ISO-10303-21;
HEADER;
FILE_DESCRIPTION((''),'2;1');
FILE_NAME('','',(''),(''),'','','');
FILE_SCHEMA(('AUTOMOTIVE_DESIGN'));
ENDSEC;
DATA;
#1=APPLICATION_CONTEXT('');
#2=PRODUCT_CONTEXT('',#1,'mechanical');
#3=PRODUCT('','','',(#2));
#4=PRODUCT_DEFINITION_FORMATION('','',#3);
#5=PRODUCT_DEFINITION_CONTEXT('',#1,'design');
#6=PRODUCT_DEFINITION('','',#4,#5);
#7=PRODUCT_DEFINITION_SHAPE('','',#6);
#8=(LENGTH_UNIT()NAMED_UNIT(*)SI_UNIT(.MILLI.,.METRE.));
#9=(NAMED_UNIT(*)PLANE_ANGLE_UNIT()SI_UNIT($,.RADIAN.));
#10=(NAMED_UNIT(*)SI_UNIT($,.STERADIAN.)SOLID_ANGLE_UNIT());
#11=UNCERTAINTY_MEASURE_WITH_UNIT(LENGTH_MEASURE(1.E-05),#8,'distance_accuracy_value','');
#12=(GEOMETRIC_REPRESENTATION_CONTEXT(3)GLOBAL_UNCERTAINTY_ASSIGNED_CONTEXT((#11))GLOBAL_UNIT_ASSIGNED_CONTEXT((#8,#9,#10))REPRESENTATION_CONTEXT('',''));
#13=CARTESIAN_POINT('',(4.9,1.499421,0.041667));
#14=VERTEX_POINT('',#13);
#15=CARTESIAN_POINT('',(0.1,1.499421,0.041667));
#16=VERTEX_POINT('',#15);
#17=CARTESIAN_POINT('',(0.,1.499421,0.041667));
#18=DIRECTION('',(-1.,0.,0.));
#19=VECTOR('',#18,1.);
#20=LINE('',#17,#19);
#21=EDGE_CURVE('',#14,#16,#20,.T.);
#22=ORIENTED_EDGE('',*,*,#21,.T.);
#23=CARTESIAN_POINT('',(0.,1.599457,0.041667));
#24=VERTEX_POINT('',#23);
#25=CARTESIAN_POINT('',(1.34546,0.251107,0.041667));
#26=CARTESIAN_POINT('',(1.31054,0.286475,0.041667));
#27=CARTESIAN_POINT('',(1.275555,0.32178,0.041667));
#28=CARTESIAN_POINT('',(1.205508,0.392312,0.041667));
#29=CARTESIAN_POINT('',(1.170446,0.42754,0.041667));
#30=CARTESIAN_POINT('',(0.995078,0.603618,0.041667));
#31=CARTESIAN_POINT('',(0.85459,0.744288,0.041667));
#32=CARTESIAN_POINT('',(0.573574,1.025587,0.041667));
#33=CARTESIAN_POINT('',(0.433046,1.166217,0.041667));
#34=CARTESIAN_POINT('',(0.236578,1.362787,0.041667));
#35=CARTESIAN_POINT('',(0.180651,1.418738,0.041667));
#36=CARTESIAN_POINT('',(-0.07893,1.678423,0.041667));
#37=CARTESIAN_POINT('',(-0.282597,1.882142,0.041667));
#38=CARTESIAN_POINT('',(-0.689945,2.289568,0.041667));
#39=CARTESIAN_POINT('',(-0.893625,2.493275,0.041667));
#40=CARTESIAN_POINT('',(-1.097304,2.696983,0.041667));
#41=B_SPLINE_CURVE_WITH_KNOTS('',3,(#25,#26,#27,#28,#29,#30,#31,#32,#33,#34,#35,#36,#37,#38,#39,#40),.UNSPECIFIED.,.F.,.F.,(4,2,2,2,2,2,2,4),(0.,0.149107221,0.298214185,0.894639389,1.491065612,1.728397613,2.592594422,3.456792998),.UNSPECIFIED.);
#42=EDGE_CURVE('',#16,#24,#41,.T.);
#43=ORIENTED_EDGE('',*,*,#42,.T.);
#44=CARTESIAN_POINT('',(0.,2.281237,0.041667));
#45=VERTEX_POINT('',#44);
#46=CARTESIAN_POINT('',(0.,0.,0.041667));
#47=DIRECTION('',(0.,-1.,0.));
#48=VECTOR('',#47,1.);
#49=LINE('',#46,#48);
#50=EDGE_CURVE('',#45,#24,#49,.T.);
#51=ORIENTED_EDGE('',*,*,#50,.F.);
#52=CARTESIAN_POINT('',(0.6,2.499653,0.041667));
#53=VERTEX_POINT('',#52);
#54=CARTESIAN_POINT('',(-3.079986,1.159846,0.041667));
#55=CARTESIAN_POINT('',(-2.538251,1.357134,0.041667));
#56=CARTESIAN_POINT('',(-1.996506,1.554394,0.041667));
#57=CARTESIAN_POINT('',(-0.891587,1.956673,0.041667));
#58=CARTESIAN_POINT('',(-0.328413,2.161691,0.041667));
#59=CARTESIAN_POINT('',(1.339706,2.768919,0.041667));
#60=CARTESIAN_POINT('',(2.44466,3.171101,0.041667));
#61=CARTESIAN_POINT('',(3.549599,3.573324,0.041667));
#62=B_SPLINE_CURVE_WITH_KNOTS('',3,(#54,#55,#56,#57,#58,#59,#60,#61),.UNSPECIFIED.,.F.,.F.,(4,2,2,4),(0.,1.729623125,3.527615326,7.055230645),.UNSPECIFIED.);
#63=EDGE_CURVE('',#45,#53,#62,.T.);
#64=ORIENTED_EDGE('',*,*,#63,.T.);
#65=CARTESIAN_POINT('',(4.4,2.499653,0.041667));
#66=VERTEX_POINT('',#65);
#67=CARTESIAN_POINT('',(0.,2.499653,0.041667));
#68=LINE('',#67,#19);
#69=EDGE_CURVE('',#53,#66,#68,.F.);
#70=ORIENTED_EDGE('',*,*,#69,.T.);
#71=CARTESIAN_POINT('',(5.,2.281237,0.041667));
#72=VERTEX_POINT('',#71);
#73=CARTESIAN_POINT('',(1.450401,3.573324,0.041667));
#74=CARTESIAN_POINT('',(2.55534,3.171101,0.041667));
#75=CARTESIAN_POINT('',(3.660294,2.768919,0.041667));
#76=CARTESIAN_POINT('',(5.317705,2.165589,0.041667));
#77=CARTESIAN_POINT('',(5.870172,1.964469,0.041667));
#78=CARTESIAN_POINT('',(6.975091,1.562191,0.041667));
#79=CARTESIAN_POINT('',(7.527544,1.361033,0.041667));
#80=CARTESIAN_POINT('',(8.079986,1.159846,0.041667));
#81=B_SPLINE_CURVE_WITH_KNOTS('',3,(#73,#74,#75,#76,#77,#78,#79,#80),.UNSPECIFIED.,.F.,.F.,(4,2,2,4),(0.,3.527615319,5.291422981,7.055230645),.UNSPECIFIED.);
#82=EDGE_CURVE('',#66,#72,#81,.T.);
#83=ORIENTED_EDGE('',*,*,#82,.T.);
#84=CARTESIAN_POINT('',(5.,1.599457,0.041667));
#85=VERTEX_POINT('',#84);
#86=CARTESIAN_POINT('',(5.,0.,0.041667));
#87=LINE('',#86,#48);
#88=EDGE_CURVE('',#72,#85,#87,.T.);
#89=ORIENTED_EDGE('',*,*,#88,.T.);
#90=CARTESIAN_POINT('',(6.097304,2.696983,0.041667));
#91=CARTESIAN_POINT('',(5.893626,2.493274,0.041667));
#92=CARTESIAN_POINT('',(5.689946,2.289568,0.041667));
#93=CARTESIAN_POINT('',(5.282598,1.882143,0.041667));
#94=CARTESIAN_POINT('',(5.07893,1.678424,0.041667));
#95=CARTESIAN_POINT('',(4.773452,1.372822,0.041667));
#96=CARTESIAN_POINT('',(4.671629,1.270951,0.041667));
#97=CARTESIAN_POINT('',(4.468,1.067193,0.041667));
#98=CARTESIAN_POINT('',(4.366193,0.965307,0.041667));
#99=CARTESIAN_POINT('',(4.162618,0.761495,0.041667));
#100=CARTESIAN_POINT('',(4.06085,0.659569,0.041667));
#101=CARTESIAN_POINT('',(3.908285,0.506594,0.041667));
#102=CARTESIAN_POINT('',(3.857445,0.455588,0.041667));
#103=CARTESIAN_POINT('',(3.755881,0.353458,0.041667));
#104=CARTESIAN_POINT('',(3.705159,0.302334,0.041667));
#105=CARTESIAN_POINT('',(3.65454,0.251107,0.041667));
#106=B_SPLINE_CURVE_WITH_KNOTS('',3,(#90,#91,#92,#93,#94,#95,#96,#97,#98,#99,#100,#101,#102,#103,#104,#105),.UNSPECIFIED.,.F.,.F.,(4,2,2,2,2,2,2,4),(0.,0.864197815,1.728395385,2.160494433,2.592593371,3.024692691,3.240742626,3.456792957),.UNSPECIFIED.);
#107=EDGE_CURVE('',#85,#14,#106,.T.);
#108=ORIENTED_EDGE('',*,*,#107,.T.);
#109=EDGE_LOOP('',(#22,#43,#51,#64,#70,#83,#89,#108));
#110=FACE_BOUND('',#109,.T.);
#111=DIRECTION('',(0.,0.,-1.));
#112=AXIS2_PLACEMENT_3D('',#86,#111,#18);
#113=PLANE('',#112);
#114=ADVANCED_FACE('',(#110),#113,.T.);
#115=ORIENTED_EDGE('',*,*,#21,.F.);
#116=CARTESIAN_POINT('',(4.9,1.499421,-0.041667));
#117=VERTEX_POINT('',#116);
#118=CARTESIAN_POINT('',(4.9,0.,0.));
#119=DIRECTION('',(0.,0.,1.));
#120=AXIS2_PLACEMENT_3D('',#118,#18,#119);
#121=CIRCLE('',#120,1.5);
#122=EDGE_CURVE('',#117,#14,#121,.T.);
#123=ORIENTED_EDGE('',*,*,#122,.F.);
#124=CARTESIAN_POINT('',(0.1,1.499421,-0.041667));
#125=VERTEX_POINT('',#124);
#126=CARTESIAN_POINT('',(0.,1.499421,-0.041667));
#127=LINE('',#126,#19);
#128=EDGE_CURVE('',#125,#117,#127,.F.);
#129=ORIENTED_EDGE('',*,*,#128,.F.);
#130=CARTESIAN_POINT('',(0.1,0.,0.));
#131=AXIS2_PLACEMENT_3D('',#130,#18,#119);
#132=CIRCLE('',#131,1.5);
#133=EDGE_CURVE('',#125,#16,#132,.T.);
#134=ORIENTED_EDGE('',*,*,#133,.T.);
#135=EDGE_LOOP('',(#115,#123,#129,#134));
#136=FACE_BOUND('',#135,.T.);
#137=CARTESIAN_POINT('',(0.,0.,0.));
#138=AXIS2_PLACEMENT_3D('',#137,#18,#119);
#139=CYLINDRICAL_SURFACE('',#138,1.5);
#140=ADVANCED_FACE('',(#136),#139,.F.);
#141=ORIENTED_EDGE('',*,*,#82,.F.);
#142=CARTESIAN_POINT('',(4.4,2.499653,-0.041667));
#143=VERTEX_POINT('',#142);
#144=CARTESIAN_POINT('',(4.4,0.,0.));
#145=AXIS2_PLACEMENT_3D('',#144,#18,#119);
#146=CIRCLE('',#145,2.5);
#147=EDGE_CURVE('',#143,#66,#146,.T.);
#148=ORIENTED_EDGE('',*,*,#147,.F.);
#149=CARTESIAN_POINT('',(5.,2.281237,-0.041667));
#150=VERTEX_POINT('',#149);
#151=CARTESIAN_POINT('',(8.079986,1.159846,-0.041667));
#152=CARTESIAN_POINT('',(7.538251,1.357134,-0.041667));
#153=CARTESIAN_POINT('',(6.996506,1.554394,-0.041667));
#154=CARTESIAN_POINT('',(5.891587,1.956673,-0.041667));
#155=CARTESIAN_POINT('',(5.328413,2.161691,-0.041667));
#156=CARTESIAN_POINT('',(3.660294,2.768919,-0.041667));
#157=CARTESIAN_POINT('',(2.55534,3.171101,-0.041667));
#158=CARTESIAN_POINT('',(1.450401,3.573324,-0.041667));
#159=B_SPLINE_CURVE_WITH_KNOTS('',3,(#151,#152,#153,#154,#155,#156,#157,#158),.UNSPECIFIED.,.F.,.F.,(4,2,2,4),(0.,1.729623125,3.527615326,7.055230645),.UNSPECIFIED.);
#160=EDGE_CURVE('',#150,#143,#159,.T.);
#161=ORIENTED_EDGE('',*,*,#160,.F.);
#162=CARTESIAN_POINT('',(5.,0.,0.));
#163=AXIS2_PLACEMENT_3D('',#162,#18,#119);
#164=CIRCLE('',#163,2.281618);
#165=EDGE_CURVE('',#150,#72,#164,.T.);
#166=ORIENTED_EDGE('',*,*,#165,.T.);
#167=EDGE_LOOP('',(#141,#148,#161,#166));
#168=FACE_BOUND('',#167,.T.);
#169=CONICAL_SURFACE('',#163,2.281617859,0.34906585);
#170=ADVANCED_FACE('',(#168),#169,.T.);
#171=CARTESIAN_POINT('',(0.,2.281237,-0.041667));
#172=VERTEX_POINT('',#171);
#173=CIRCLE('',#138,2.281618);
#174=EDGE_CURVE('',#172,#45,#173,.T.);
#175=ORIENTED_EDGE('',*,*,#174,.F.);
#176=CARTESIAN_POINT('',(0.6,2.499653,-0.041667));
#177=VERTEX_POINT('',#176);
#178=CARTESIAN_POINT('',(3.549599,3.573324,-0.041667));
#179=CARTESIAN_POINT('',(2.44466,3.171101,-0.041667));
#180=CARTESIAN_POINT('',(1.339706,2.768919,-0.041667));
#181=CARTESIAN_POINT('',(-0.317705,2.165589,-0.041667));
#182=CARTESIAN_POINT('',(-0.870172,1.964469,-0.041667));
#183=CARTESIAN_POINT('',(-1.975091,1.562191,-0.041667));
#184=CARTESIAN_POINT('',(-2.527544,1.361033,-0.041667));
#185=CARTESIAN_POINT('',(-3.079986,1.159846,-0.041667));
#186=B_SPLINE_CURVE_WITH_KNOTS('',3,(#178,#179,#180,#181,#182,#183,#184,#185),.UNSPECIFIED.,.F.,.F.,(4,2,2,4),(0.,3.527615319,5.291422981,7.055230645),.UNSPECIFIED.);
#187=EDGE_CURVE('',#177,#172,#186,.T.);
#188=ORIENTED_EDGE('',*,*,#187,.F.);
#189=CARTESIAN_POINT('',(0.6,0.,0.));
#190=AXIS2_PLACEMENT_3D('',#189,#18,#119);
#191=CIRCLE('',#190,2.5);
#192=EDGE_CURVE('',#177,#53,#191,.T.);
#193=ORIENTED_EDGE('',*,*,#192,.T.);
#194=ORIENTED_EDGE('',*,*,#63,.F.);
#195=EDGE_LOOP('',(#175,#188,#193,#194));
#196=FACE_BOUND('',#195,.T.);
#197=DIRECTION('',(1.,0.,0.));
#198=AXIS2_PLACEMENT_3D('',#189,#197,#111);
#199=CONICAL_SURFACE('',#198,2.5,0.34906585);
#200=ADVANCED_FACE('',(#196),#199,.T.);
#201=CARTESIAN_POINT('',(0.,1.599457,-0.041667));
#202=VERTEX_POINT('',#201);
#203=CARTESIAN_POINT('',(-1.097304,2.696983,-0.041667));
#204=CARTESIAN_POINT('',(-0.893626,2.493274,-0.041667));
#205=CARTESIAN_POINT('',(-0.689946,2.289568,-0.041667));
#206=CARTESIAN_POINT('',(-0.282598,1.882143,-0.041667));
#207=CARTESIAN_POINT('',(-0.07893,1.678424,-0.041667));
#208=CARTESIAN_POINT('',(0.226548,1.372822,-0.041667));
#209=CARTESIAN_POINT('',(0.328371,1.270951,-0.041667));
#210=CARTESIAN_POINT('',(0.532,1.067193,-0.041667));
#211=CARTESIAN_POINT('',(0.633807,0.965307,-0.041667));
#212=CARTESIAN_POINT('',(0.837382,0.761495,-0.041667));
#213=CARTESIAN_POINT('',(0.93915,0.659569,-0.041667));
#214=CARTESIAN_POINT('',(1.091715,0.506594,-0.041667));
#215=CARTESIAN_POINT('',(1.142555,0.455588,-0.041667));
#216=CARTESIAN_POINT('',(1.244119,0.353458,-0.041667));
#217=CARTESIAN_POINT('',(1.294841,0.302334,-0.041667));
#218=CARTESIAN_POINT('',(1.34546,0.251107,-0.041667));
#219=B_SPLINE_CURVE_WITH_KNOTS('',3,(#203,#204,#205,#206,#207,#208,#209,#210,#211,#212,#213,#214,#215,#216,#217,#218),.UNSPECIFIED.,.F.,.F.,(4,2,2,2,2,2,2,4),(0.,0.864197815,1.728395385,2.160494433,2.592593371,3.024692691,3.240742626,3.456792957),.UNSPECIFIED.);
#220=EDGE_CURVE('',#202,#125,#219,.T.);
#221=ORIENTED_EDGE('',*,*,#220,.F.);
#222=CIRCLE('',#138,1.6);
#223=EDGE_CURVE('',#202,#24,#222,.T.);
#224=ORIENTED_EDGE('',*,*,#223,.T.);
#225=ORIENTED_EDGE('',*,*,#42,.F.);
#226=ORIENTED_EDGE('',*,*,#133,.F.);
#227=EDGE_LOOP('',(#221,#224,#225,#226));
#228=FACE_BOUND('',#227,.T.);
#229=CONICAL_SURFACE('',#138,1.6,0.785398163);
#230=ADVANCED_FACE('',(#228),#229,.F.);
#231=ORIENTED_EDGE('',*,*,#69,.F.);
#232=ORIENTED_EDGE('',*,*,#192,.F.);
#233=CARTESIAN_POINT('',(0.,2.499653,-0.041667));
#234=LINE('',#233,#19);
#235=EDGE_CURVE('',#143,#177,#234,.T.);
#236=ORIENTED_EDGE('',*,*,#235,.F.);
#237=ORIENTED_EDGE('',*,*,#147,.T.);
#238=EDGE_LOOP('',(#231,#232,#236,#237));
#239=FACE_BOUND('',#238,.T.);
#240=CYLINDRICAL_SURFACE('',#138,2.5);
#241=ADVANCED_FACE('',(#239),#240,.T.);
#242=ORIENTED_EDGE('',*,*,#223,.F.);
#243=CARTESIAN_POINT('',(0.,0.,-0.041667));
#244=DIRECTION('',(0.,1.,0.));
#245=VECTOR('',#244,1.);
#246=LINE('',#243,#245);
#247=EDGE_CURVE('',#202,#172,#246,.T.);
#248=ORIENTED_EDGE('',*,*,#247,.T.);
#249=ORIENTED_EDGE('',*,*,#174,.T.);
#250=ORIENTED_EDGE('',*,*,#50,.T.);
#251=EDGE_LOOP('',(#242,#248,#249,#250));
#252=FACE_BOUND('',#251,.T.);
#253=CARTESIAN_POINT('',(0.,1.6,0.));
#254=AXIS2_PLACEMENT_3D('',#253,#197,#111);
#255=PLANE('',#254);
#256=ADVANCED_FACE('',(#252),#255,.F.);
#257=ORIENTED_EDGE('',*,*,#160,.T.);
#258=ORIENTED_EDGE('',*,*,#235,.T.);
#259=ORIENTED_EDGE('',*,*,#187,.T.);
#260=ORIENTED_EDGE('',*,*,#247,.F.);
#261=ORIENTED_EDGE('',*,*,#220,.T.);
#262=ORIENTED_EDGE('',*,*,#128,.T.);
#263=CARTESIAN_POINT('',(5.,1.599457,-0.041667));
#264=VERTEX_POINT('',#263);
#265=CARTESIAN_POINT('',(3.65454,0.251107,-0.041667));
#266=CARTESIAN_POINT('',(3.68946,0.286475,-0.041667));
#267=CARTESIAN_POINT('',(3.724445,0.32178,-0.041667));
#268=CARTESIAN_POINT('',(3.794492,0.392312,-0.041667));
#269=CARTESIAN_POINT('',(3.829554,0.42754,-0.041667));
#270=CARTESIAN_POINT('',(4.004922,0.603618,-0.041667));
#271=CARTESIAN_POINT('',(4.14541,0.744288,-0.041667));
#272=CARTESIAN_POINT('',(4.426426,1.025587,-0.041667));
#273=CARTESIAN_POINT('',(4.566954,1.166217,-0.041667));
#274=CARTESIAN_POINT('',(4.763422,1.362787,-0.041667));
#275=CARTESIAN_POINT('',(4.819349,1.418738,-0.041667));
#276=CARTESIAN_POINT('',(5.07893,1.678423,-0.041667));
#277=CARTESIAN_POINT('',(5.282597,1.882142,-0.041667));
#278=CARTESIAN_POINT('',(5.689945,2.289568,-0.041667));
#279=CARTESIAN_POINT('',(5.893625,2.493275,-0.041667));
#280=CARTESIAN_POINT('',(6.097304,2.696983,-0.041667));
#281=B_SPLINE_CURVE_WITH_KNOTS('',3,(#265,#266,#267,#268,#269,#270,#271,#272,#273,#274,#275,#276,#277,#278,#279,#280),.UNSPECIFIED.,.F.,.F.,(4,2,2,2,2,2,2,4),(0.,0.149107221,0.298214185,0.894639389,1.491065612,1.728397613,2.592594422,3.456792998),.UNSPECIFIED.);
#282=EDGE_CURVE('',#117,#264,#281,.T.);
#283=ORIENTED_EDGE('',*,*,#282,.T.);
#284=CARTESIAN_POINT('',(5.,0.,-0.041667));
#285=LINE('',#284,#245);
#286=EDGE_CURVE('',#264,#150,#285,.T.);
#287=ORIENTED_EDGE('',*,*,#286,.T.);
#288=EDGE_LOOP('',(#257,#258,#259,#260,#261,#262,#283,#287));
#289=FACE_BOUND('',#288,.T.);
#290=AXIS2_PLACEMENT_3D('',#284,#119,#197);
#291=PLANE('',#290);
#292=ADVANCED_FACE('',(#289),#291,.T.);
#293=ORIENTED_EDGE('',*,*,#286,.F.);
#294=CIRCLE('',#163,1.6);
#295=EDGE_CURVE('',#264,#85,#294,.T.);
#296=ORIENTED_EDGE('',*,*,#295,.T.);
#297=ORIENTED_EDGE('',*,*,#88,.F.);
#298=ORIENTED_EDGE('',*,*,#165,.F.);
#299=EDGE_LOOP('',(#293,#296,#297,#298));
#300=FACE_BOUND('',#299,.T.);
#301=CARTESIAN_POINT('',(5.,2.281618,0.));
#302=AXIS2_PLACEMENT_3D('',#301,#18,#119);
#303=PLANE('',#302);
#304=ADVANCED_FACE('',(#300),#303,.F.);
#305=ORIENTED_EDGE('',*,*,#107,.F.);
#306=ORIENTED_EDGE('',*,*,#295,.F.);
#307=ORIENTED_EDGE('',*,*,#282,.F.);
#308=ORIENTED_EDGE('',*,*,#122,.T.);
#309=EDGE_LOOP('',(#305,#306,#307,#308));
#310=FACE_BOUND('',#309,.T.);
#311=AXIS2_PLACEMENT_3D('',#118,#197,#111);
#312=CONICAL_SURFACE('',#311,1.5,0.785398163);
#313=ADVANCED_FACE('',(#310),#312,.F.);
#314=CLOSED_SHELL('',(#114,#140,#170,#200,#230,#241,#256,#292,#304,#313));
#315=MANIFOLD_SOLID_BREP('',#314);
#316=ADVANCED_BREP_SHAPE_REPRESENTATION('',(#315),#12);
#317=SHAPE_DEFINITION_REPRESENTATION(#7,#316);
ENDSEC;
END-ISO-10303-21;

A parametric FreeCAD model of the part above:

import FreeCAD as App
import Part
import Sketcher

V = App.Vector
Q = App.Units.Quantity


def add_polygon(sketch, points):
    """Adds a closed chain of lines whose ends are joined by coincident constraints."""
    first, n = sketch.GeometryCount, len(points)
    for a, b in zip(points, points[1:] + points[:1]):
        sketch.addGeometry(Part.LineSegment(App.Vector(*a, 0), App.Vector(*b, 0)), False)
    for i in range(n):
        sketch.addConstraint(Sketcher.Constraint("Coincident", first + i, 2, first + (i + 1) % n, 1))

doc = App.newDocument("Part")
body = doc.addObject("PartDesign::Body", "Body")

# Sketch on XY plane
sketch1 = body.newObject("Sketcher::SketchObject", "Sketch")
sketch1.AttachmentSupport = (doc.getObject("XY_Plane"), [""])
sketch1.MapMode = "FlatFace"
add_polygon(sketch1, [(4.4, 2.5), (0.6, 2.5), (0, 2.28), (0, 1.6), (0.1, 1.5), (4.9, 1.5), (5, 1.6), (5, 2.28)])  # lines 0-7
sketch1.addConstraint([
    Sketcher.Constraint("Horizontal", 0),
    Sketcher.Constraint("Vertical", 2),
    Sketcher.Constraint("Horizontal", 4),
    Sketcher.Constraint("Vertical", 6),
    Sketcher.Constraint("PointOnObject", 1, 2, -2),
    Sketcher.Constraint("Perpendicular", 3, 5),
    Sketcher.Constraint("Horizontal", 2, 2, 5, 2),
    Sketcher.Constraint("Horizontal", 1, 2, 6, 2),
    Sketcher.Constraint("Equal", 3, 5),
    Sketcher.Constraint("Equal", 1, 7),
    Sketcher.Constraint("Angle", 1, Q("-160 deg")),
    Sketcher.Constraint("DistanceX", 0, 2, 0, 1, Q("3.8 mm")),
    Sketcher.Constraint("DistanceX", 4, 1, 4, 2, Q("4.8 mm")),
    Sketcher.Constraint("DistanceX", -1, 1, 5, 2, Q("5 mm")),
    Sketcher.Constraint("DistanceY", 3, 2, 0, 2, Q("1 mm")),
    Sketcher.Constraint("DistanceY", -1, 1, 0, 2, Q("2.5 mm")),
])
revolution = body.newObject("PartDesign::Revolution", "Revolution")
revolution.Profile = sketch1
revolution.ReferenceAxis = (sketch1, ["H_Axis"])
revolution.Angle = 360

# Sketch on YZ plane
sketch2 = body.newObject("Sketcher::SketchObject", "Sketch001")
sketch2.AttachmentSupport = (doc.getObject("YZ_Plane"), [""])
sketch2.MapMode = "FlatFace"
add_polygon(sketch2, [(2.5, 0.04), (0, 0.04), (0, -0.04), (2.5, -0.04)])  # lines 0-3
sketch2.addConstraint([
    Sketcher.Constraint("Horizontal", 0),
    Sketcher.Constraint("Vertical", 1),
    Sketcher.Constraint("Horizontal", 2),
    Sketcher.Constraint("Vertical", 3),
    Sketcher.Constraint("Symmetric", 0, 2, 1, 2, -1, 1),
    Sketcher.Constraint("DistanceX", 0, 2, 0, 1, Q("2.5 mm")),
    Sketcher.Constraint("DistanceY", 1, 2, 1, 1, Q("0.083333 mm")),
])
pocket1 = body.newObject("PartDesign::Pocket", "Pocket")
pocket1.Profile = sketch2
pocket1.Type = "ThroughAll"
pocket1.Reversed = True

doc.recompute()
